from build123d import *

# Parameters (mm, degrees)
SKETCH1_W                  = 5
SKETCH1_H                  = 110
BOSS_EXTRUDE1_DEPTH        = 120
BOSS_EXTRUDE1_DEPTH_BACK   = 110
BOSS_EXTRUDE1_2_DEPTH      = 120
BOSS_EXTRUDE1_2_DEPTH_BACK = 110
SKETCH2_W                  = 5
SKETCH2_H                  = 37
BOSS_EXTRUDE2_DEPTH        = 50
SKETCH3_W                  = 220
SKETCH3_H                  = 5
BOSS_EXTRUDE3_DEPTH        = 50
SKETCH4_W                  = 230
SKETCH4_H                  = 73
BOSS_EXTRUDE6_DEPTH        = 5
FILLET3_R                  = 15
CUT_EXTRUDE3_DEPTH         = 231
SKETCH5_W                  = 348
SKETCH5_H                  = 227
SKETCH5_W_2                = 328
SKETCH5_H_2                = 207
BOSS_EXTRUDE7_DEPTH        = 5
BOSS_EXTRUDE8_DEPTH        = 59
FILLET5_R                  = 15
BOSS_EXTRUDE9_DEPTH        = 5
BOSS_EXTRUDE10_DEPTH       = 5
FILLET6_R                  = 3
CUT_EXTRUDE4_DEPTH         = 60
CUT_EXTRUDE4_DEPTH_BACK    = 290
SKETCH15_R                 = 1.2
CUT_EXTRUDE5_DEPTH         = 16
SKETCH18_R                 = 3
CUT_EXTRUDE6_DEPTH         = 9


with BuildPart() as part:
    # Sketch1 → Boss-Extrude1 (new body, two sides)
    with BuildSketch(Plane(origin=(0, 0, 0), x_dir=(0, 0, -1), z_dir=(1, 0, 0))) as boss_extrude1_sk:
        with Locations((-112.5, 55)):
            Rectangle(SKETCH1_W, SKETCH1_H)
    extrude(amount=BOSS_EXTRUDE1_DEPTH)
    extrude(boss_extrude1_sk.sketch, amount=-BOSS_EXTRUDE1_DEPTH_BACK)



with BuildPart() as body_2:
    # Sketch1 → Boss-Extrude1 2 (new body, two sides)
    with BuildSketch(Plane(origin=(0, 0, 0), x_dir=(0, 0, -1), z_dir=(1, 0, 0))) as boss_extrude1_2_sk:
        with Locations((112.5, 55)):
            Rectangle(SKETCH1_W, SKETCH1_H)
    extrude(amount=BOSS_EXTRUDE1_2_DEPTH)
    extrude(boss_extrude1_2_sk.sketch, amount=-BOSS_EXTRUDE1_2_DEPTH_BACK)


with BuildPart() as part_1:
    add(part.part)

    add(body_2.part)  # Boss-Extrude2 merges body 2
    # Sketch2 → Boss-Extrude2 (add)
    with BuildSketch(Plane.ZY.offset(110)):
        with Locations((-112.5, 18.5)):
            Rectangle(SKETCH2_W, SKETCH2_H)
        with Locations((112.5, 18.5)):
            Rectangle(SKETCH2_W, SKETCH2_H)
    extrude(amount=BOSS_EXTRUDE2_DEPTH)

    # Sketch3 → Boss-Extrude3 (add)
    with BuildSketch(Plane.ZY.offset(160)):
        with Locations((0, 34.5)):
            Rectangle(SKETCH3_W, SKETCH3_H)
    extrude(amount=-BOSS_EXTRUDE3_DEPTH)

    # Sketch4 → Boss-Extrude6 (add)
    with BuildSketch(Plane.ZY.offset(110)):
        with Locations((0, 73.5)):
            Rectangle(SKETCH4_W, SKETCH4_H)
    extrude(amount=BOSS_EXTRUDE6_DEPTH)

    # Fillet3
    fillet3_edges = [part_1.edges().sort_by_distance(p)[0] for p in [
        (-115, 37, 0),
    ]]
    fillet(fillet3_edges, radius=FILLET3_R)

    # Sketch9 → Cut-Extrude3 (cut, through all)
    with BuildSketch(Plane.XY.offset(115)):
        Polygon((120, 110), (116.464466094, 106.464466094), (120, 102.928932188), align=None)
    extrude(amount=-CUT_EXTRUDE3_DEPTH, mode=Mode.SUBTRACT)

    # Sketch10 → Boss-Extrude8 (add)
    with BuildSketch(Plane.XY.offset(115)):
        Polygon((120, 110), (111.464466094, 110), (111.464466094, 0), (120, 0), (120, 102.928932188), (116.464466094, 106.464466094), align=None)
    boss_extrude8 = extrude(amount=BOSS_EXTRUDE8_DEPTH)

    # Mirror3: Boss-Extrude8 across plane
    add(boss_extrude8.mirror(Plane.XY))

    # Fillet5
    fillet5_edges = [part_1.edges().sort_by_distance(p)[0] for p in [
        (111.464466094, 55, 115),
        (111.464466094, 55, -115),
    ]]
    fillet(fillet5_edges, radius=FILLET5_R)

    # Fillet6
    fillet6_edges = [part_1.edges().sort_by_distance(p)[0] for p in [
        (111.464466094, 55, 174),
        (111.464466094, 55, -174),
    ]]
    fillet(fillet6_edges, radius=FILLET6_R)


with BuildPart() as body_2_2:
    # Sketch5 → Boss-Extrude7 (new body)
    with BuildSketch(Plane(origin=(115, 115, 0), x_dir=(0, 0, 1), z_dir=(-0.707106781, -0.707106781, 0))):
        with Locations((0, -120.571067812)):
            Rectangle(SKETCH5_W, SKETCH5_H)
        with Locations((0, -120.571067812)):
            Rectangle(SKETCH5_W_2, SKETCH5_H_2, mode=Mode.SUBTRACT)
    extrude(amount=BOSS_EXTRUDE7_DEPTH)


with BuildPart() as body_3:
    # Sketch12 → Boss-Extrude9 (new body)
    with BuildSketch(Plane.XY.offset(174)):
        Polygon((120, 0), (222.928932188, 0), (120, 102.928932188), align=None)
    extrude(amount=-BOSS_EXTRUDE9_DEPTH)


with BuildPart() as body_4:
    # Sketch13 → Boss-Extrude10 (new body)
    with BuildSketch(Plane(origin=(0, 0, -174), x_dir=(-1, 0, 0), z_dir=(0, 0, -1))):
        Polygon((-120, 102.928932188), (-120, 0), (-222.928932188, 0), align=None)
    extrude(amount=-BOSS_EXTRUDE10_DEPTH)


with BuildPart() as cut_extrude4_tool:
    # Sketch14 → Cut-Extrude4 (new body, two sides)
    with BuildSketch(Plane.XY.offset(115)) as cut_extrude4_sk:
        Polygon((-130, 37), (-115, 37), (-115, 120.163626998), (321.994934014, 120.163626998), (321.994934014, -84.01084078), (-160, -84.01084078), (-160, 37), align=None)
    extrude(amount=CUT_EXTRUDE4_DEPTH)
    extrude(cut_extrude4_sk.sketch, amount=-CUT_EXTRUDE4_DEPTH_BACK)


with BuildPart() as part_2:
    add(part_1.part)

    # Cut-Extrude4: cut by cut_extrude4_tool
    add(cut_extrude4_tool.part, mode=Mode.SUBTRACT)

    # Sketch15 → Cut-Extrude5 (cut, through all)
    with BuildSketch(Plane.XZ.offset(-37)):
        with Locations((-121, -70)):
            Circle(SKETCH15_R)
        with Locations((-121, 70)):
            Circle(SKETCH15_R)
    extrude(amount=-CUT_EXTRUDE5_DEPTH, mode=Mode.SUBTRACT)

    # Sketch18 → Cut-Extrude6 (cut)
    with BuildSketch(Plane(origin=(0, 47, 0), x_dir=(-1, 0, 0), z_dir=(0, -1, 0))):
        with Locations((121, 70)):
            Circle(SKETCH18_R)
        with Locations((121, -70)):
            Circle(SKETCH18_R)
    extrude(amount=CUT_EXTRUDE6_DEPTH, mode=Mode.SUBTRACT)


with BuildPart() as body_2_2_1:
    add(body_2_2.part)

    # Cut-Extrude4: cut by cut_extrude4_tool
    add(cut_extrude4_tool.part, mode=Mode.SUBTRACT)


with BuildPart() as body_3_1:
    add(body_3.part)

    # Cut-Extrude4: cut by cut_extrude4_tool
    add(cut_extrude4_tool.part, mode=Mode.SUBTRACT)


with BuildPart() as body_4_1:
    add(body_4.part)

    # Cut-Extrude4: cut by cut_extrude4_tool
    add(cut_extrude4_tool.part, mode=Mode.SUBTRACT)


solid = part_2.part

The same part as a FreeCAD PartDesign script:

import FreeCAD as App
import Part
import Sketcher
from FreeCAD import Vector
Q = App.Units.Quantity


def edges_at(feature, points):
    """Names of the edges that pass closest to the given points."""
    edges = feature.Shape.Edges
    near = lambda p: min(range(len(edges)), key=lambda i: edges[i].distToShape(Part.Vertex(*p))[0])
    return sorted({f"Edge{near(p) + 1}" for p in points})

doc = App.newDocument("Part")
body = doc.addObject("PartDesign::Body", "Body")

# Sketch on YZ plane
sketch1 = doc.addObject("Sketcher::SketchObject", "Sketch")
body.addObject(sketch1)
sketch1.AttachmentSupport = (doc.YZ_Plane, [""])
sketch1.MapMode = "FlatFace"
sketch1.addGeometry([
    Part.LineSegment(Vector(110, 115, 0), Vector(0, 115, 0)),
    Part.LineSegment(Vector(0, 115, 0), Vector(0, 110, 0)),
    Part.LineSegment(Vector(0, 110, 0), Vector(110, 110, 0)),
    Part.LineSegment(Vector(110, 110, 0), Vector(110, 115, 0)),
], False)
sketch1.addConstraint([
    Sketcher.Constraint("Coincident", 0, 2, 1, 1),
    Sketcher.Constraint("Coincident", 1, 2, 2, 1),
    Sketcher.Constraint("Coincident", 2, 2, 3, 1),
    Sketcher.Constraint("Coincident", 3, 2, 0, 1),
    Sketcher.Constraint("Horizontal", 0),
    Sketcher.Constraint("Vertical", 1),
    Sketcher.Constraint("Horizontal", 2),
    Sketcher.Constraint("Vertical", 3),
    Sketcher.Constraint("PointOnObject", 0, 2, -2),
    Sketcher.Constraint("DistanceX", 0, 2, 0, 1, Q("110 mm")),
    Sketcher.Constraint("DistanceY", 1, 2, 1, 1, Q("5 mm")),
    Sketcher.Constraint("DistanceY", -1, 1, 0, 2, Q("115 mm")),
])
pad1 = doc.addObject("PartDesign::Pad", "Pad")
body.addObject(pad1)
pad1.Profile = sketch1
pad1.Type = "TwoLengths"
pad1.Length = 120
pad1.Length2 = 110
body2 = doc.addObject("PartDesign::Body", "Body001")

# Sketch on YZ plane
sketch2 = doc.addObject("Sketcher::SketchObject", "Sketch001")
body2.addObject(sketch2)
sketch2.AttachmentSupport = (doc.getObject("YZ_Plane001"), [""])
sketch2.MapMode = "FlatFace"
sketch2.addGeometry([
    Part.LineSegment(Vector(110, -110, 0), Vector(0, -110, 0)),
    Part.LineSegment(Vector(0, -110, 0), Vector(0, -115, 0)),
    Part.LineSegment(Vector(0, -115, 0), Vector(110, -115, 0)),
    Part.LineSegment(Vector(110, -115, 0), Vector(110, -110, 0)),
], False)
sketch2.addConstraint([
    Sketcher.Constraint("Coincident", 0, 2, 1, 1),
    Sketcher.Constraint("Coincident", 1, 2, 2, 1),
    Sketcher.Constraint("Coincident", 2, 2, 3, 1),
    Sketcher.Constraint("Coincident", 3, 2, 0, 1),
    Sketcher.Constraint("Horizontal", 0),
    Sketcher.Constraint("Vertical", 1),
    Sketcher.Constraint("Horizontal", 2),
    Sketcher.Constraint("Vertical", 3),
    Sketcher.Constraint("PointOnObject", 0, 2, -2),
    Sketcher.Constraint("DistanceX", 0, 2, 0, 1, Q("110 mm")),
    Sketcher.Constraint("DistanceY", 1, 2, 1, 1, Q("5 mm")),
    Sketcher.Constraint("DistanceY", 0, 2, -1, 1, Q("110 mm")),
])
pad2 = doc.addObject("PartDesign::Pad", "Pad001")
body2.addObject(pad2)
pad2.Profile = sketch2
pad2.Type = "TwoLengths"
pad2.Length = 120
pad2.Length2 = 110
body.AllowCompound = True
doc.recompute()

boolean = doc.addObject("PartDesign::Boolean", "Boolean")
body.addObject(boolean)
boolean.Type = "Fuse"
boolean.addObjects([body2])

# Sketch on YZ plane
sketch3 = doc.addObject("Sketcher::SketchObject", "Sketch002")
body.addObject(sketch3)
sketch3.AttachmentSupport = (doc.YZ_Plane, [""])
sketch3.MapMode = "FlatFace"
sketch3.AttachmentOffset = App.Placement(Vector(0, 0, -110), App.Rotation())
sketch3.addGeometry([
    Part.LineSegment(Vector(37, -115, 0), Vector(0, -115, 0)),  # 0
    Part.LineSegment(Vector(0, -115, 0), Vector(0, -110, 0)),  # 1
    Part.LineSegment(Vector(0, -110, 0), Vector(37, -110, 0)),  # 2
    Part.LineSegment(Vector(37, -110, 0), Vector(37, -115, 0)),  # 3
    Part.LineSegment(Vector(37, 110, 0), Vector(0, 110, 0)),  # 4
    Part.LineSegment(Vector(0, 110, 0), Vector(0, 115, 0)),  # 5
    Part.LineSegment(Vector(0, 115, 0), Vector(37, 115, 0)),  # 6
    Part.LineSegment(Vector(37, 115, 0), Vector(37, 110, 0)),  # 7
], False)
sketch3.addConstraint([
    Sketcher.Constraint("Coincident", 0, 2, 1, 1),
    Sketcher.Constraint("Coincident", 1, 2, 2, 1),
    Sketcher.Constraint("Coincident", 2, 2, 3, 1),
    Sketcher.Constraint("Coincident", 3, 2, 0, 1),
    Sketcher.Constraint("Coincident", 4, 2, 5, 1),
    Sketcher.Constraint("Coincident", 5, 2, 6, 1),
    Sketcher.Constraint("Coincident", 6, 2, 7, 1),
    Sketcher.Constraint("Coincident", 7, 2, 4, 1),
    Sketcher.Constraint("Horizontal", 0),
    Sketcher.Constraint("Vertical", 1),
    Sketcher.Constraint("Horizontal", 2),
    Sketcher.Constraint("Vertical", 3),
    Sketcher.Constraint("Horizontal", 4),
    Sketcher.Constraint("Vertical", 5),
    Sketcher.Constraint("Horizontal", 6),
    Sketcher.Constraint("Vertical", 7),
    Sketcher.Constraint("Symmetric", 1, 2, 4, 2, -1, 1),
    Sketcher.Constraint("Symmetric", 0, 2, 5, 2, -1),
    Sketcher.Constraint("Vertical", 3, 2, 6, 2),
    Sketcher.Constraint("DistanceX", 0, 2, 0, 1, Q("37 mm")),
    Sketcher.Constraint("DistanceY", 1, 1, 1, 2, Q("5 mm")),
    Sketcher.Constraint("DistanceY", 0, 2, -1, 1, Q("115 mm")),
])
pad3 = doc.addObject("PartDesign::Pad", "Pad002")
body.addObject(pad3)
pad3.Profile = sketch3
pad3.Length = 50
pad3.Reversed = True

# Sketch on YZ plane
sketch4 = doc.addObject("Sketcher::SketchObject", "Sketch003")
body.addObject(sketch4)
sketch4.AttachmentSupport = (doc.YZ_Plane, [""])
sketch4.MapMode = "FlatFace"
sketch4.AttachmentOffset = App.Placement(Vector(0, 0, -160), App.Rotation())
sketch4.addGeometry([
    Part.LineSegment(Vector(37, -110, 0), Vector(32, -110, 0)),
    Part.LineSegment(Vector(32, -110, 0), Vector(32, 110, 0)),
    Part.LineSegment(Vector(32, 110, 0), Vector(37, 110, 0)),
    Part.LineSegment(Vector(37, 110, 0), Vector(37, -110, 0)),
], False)
sketch4.addConstraint([
    Sketcher.Constraint("Coincident", 0, 2, 1, 1),
    Sketcher.Constraint("Coincident", 1, 2, 2, 1),
    Sketcher.Constraint("Coincident", 2, 2, 3, 1),
    Sketcher.Constraint("Coincident", 3, 2, 0, 1),
    Sketcher.Constraint("Horizontal", 0),
    Sketcher.Constraint("Vertical", 1),
    Sketcher.Constraint("Horizontal", 2),
    Sketcher.Constraint("Vertical", 3),
    Sketcher.Constraint("DistanceX", 0, 2, 0, 1, Q("5 mm")),
    Sketcher.Constraint("DistanceY", 1, 1, 1, 2, Q("220 mm")),
    Sketcher.Constraint("DistanceX", -1, 1, 0, 2, Q("32 mm")),
    Sketcher.Constraint("DistanceY", 0, 2, -1, 1, Q("110 mm")),
])
pad4 = doc.addObject("PartDesign::Pad", "Pad003")
body.addObject(pad4)
pad4.Profile = sketch4
pad4.Length = 50

# Sketch on YZ plane
sketch5 = doc.addObject("Sketcher::SketchObject", "Sketch004")
body.addObject(sketch5)
sketch5.AttachmentSupport = (doc.YZ_Plane, [""])
sketch5.MapMode = "FlatFace"
sketch5.AttachmentOffset = App.Placement(Vector(0, 0, -110), App.Rotation())
sketch5.addGeometry([
    Part.LineSegment(Vector(110, -115, 0), Vector(37, -115, 0)),
    Part.LineSegment(Vector(37, -115, 0), Vector(37, 115, 0)),
    Part.LineSegment(Vector(37, 115, 0), Vector(110, 115, 0)),
    Part.LineSegment(Vector(110, 115, 0), Vector(110, -115, 0)),
], False)
sketch5.addConstraint([
    Sketcher.Constraint("Coincident", 0, 2, 1, 1),
    Sketcher.Constraint("Coincident", 1, 2, 2, 1),
    Sketcher.Constraint("Coincident", 2, 2, 3, 1),
    Sketcher.Constraint("Coincident", 3, 2, 0, 1),
    Sketcher.Constraint("Horizontal", 0),
    Sketcher.Constraint("Vertical", 1),
    Sketcher.Constraint("Horizontal", 2),
    Sketcher.Constraint("Vertical", 3),
    Sketcher.Constraint("DistanceX", 0, 2, 0, 1, Q("73 mm")),
    Sketcher.Constraint("DistanceY", 1, 1, 1, 2, Q("230 mm")),
    Sketcher.Constraint("DistanceX", -1, 1, 0, 2, Q("37 mm")),
    Sketcher.Constraint("DistanceY", 0, 2, -1, 1, Q("115 mm")),
])
pad5 = doc.addObject("PartDesign::Pad", "Pad004")
body.addObject(pad5)
pad5.Profile = sketch5
pad5.Length = 5
pad5.Reversed = True
doc.recompute()

fillet = doc.addObject("PartDesign::Fillet", "Fillet")
body.addObject(fillet)
fillet.Base = (pad5, edges_at(pad5, [(-115, 37, 0)]))
fillet.Radius = 15

# Sketch on XY plane
sketch6 = doc.addObject("Sketcher::SketchObject", "Sketch005")
body.addObject(sketch6)
sketch6.AttachmentSupport = (doc.XY_Plane, [""])
sketch6.MapMode = "FlatFace"
sketch6.AttachmentOffset = App.Placement(Vector(0, 0, 115), App.Rotation())
sketch6.addGeometry([
    Part.LineSegment(Vector(120, 110, 0), Vector(116, 106, 0)),
    Part.LineSegment(Vector(116, 106, 0), Vector(120, 103, 0)),
    Part.LineSegment(Vector(120, 103, 0), Vector(120, 110, 0)),
], False)
sketch6.addConstraint([
    Sketcher.Constraint("Coincident", 0, 2, 1, 1),
    Sketcher.Constraint("Coincident", 1, 2, 2, 1),
    Sketcher.Constraint("Coincident", 2, 2, 0, 1),
    Sketcher.Constraint("Vertical", 2),
    Sketcher.Constraint("Perpendicular", 0, 1),
    Sketcher.Constraint("Equal", 0, 1),
    Sketcher.Constraint("Distance", 0, Q("5 mm")),
    Sketcher.Constraint("DistanceX", -1, 1, 1, 2, Q("120 mm")),
    Sketcher.Constraint("DistanceY", -1, 1, 2, 2, Q("110 mm")),
])
pocket1 = doc.addObject("PartDesign::Pocket", "Pocket")
body.addObject(pocket1)
pocket1.Profile = sketch6
pocket1.Type = "ThroughAll"

# Sketch on XY plane
sketch7 = doc.addObject("Sketcher::SketchObject", "Sketch006")
body.addObject(sketch7)
sketch7.AttachmentSupport = (doc.XY_Plane, [""])
sketch7.MapMode = "FlatFace"
sketch7.AttachmentOffset = App.Placement(Vector(0, 0, 115), App.Rotation())
sketch7.addGeometry([
    Part.LineSegment(Vector(120, 110, 0), Vector(111, 110, 0)),  # 0
    Part.LineSegment(Vector(111, 110, 0), Vector(111, 0, 0)),  # 1
    Part.LineSegment(Vector(111, 0, 0), Vector(120, 0, 0)),  # 2
    Part.LineSegment(Vector(120, 0, 0), Vector(120, 103, 0)),  # 3
    Part.LineSegment(Vector(120, 103, 0), Vector(116, 106, 0)),  # 4
    Part.LineSegment(Vector(116, 106, 0), Vector(120, 110, 0)),  # 5
], False)
sketch7.addConstraint([
    Sketcher.Constraint("Coincident", 0, 2, 1, 1),
    Sketcher.Constraint("Coincident", 1, 2, 2, 1),
    Sketcher.Constraint("Coincident", 2, 2, 3, 1),
    Sketcher.Constraint("Coincident", 3, 2, 4, 1),
    Sketcher.Constraint("Coincident", 4, 2, 5, 1),
    Sketcher.Constraint("Coincident", 5, 2, 0, 1),
    Sketcher.Constraint("Horizontal", 0),
    Sketcher.Constraint("Vertical", 1),
    Sketcher.Constraint("Horizontal", 2),
    Sketcher.Constraint("Vertical", 3),
    Sketcher.Constraint("PointOnObject", 1, 2, -1),
    Sketcher.Constraint("Perpendicular", 4, 5),
    Sketcher.Constraint("Vertical", 3, 2, 5, 2),
    Sketcher.Constraint("Equal", 4, 5),
    Sketcher.Constraint("DistanceY", 1, 2, 1, 1, Q("110 mm")),
    Sketcher.Constraint("Distance", 4, Q("5 mm")),
    Sketcher.Constraint("DistanceX", -1, 1, 2, 2, Q("120 mm")),
    Sketcher.Constraint("DistanceX", 0, 2, 4, 2, Q("5 mm")),
])
pad6 = doc.addObject("PartDesign::Pad", "Pad005")
body.addObject(pad6)
pad6.Profile = sketch7
pad6.Length = 59
doc.recompute()

mirrored = doc.addObject("PartDesign::Mirrored", "Mirrored")
body.addObject(mirrored)
mirrored.Originals = [pad6]
mirrored.MirrorPlane = (doc.XY_Plane, [""])
body.Tip = mirrored
doc.recompute()

fillet2 = doc.addObject("PartDesign::Fillet", "Fillet001")
body.addObject(fillet2)
fillet2.Base = (mirrored, edges_at(mirrored, [(111.464, 55, 115), (111.464, 55, -115)]))
fillet2.Radius = 15
doc.recompute()

fillet3 = doc.addObject("PartDesign::Fillet", "Fillet002")
body.addObject(fillet3)
fillet3.Base = (fillet2, edges_at(fillet2, [(111.464, 55, 174), (111.464, 55, -174)]))
fillet3.Radius = 3
body3 = doc.addObject("PartDesign::Body", "Body002")

# Sketch on an angled plane
sketch8 = doc.addObject("Sketcher::SketchObject", "Sketch007")
body3.addObject(sketch8)
sketch8.Placement = App.Placement(Vector(115, 115, 0), App.Rotation(Vector(0, 0, 1), Vector(-0.707106781, 0.707106781, 0), Vector(-0.707106781, -0.707106781, 0), "ZXY"))
sketch8.addGeometry([
    Part.LineSegment(Vector(-174, -7, 0), Vector(-174, -234, 0)),  # 0
    Part.LineSegment(Vector(-174, -234, 0), Vector(174, -234, 0)),  # 1
    Part.LineSegment(Vector(174, -234, 0), Vector(174, -7, 0)),  # 2
    Part.LineSegment(Vector(174, -7, 0), Vector(-174, -7, 0)),  # 3
    Part.LineSegment(Vector(164, -224, 0), Vector(-164, -224, 0)),  # 4
    Part.LineSegment(Vector(-164, -224, 0), Vector(-164, -17, 0)),  # 5
    Part.LineSegment(Vector(-164, -17, 0), Vector(164, -17, 0)),  # 6
    Part.LineSegment(Vector(164, -17, 0), Vector(164, -224, 0)),  # 7
], False)
sketch8.addConstraint([
    Sketcher.Constraint("Coincident", 0, 2, 1, 1),
    Sketcher.Constraint("Coincident", 1, 2, 2, 1),
    Sketcher.Constraint("Coincident", 2, 2, 3, 1),
    Sketcher.Constraint("Coincident", 3, 2, 0, 1),
    Sketcher.Constraint("Coincident", 4, 2, 5, 1),
    Sketcher.Constraint("Coincident", 5, 2, 6, 1),
    Sketcher.Constraint("Coincident", 6, 2, 7, 1),
    Sketcher.Constraint("Coincident", 7, 2, 4, 1),
    Sketcher.Constraint("Vertical", 0),
    Sketcher.Constraint("Horizontal", 1),
    Sketcher.Constraint("Vertical", 2),
    Sketcher.Constraint("Horizontal", 3),
    Sketcher.Constraint("Horizontal", 4),
    Sketcher.Constraint("Vertical", 5),
    Sketcher.Constraint("Horizontal", 6),
    Sketcher.Constraint("Vertical", 7),
    Sketcher.Constraint("DistanceX", 1, 1, 1, 2, Q("348 mm")),
    Sketcher.Constraint("DistanceX", 4, 2, 4, 1, Q("328 mm")),
    Sketcher.Constraint("DistanceY", 0, 2, 0, 1, Q("227 mm")),
    Sketcher.Constraint("DistanceY", 5, 1, 5, 2, Q("207 mm")),
    Sketcher.Constraint("DistanceX", 0, 2, -1, 1, Q("174 mm")),
    Sketcher.Constraint("DistanceX", 4, 2, -1, 1, Q("164 mm")),
    Sketcher.Constraint("DistanceY", 0, 2, 4, 2, Q("10 mm")),
    Sketcher.Constraint("DistanceY", 0, 2, -1, 1, Q("234.071068 mm")),
])
pad7 = doc.addObject("PartDesign::Pad", "Pad006")
body3.addObject(pad7)
pad7.Profile = sketch8
pad7.Length = 5
body4 = doc.addObject("PartDesign::Body", "Body003")

# Sketch on XY plane
sketch9 = doc.addObject("Sketcher::SketchObject", "Sketch008")
body4.addObject(sketch9)
sketch9.AttachmentSupport = (doc.getObject("XY_Plane003"), [""])
sketch9.MapMode = "FlatFace"
sketch9.AttachmentOffset = App.Placement(Vector(0, 0, 174), App.Rotation())
sketch9.addGeometry([
    Part.LineSegment(Vector(120, 0, 0), Vector(223, 0, 0)),
    Part.LineSegment(Vector(223, 0, 0), Vector(120, 103, 0)),
    Part.LineSegment(Vector(120, 103, 0), Vector(120, 0, 0)),
], False)
sketch9.addConstraint([
    Sketcher.Constraint("Coincident", 0, 2, 1, 1),
    Sketcher.Constraint("Coincident", 1, 2, 2, 1),
    Sketcher.Constraint("Coincident", 2, 2, 0, 1),
    Sketcher.Constraint("Horizontal", 0),
    Sketcher.Constraint("Vertical", 2),
    Sketcher.Constraint("PointOnObject", 0, 2, -1),
    Sketcher.Constraint("Equal", 0, 2),
    Sketcher.Constraint("DistanceX", -1, 1, 1, 2, Q("120 mm")),
    Sketcher.Constraint("Distance", 1, Q("145.563492 mm")),
])
pad8 = doc.addObject("PartDesign::Pad", "Pad007")
body4.addObject(pad8)
pad8.Profile = sketch9
pad8.Length = 5
pad8.Reversed = True
body5 = doc.addObject("PartDesign::Body", "Body004")

# Sketch on XY plane
sketch10 = doc.addObject("Sketcher::SketchObject", "Sketch009")
body5.addObject(sketch10)
sketch10.AttachmentSupport = (doc.getObject("XY_Plane004"), [""])
sketch10.MapMode = "FlatFace"
sketch10.AttachmentOffset = App.Placement(Vector(0, 0, -174), App.Rotation())
sketch10.addGeometry([
    Part.LineSegment(Vector(120, 0, 0), Vector(120, 103, 0)),
    Part.LineSegment(Vector(120, 103, 0), Vector(223, 0, 0)),
    Part.LineSegment(Vector(223, 0, 0), Vector(120, 0, 0)),
], False)
sketch10.addConstraint([
    Sketcher.Constraint("Coincident", 0, 2, 1, 1),
    Sketcher.Constraint("Coincident", 1, 2, 2, 1),
    Sketcher.Constraint("Coincident", 2, 2, 0, 1),
    Sketcher.Constraint("Vertical", 0),
    Sketcher.Constraint("Horizontal", 2),
    Sketcher.Constraint("PointOnObject", 1, 2, -1),
    Sketcher.Constraint("Equal", 2, 0),
    Sketcher.Constraint("DistanceX", -1, 1, 0, 2, Q("120 mm")),
    Sketcher.Constraint("Distance", 1, Q("145.563492 mm")),
])
pad9 = doc.addObject("PartDesign::Pad", "Pad008")
body5.addObject(pad9)
pad9.Profile = sketch10
pad9.Length = 5
body6 = doc.addObject("PartDesign::Body", "Body005")

# Sketch on XY plane
sketch11 = doc.addObject("Sketcher::SketchObject", "Sketch010")
body6.addObject(sketch11)
sketch11.AttachmentSupport = (doc.getObject("XY_Plane005"), [""])
sketch11.MapMode = "FlatFace"
sketch11.AttachmentOffset = App.Placement(Vector(0, 0, 115), App.Rotation())
sketch11.addGeometry([
    Part.LineSegment(Vector(-115, 37, 0), Vector(-160, 37, 0)),  # 0
    Part.LineSegment(Vector(-160, 37, 0), Vector(-160, -84, 0)),  # 1
    Part.LineSegment(Vector(-160, -84, 0), Vector(322, -84, 0)),  # 2
    Part.LineSegment(Vector(322, -84, 0), Vector(322, 120, 0)),  # 3
    Part.LineSegment(Vector(322, 120, 0), Vector(-115, 120, 0)),  # 4
    Part.LineSegment(Vector(-115, 120, 0), Vector(-115, 37, 0)),  # 5
], False)
sketch11.addConstraint([
    Sketcher.Constraint("Coincident", 0, 2, 1, 1),
    Sketcher.Constraint("Coincident", 1, 2, 2, 1),
    Sketcher.Constraint("Coincident", 2, 2, 3, 1),
    Sketcher.Constraint("Coincident", 3, 2, 4, 1),
    Sketcher.Constraint("Coincident", 4, 2, 5, 1),
    Sketcher.Constraint("Coincident", 5, 2, 0, 1),
    Sketcher.Constraint("Horizontal", 0),
    Sketcher.Constraint("Vertical", 1),
    Sketcher.Constraint("Horizontal", 2),
    Sketcher.Constraint("Vertical", 3),
    Sketcher.Constraint("Horizontal", 4),
    Sketcher.Constraint("Vertical", 5),
    Sketcher.Constraint("DistanceX", 0, 2, 0, 1, Q("45 mm")),
    Sketcher.Constraint("DistanceX", 0, 2, -1, 1, Q("160 mm")),
    Sketcher.Constraint("DistanceY", -1, 1, 0, 2, Q("37 mm")),
    Sketcher.Constraint("DistanceY", 1, 2, 1, 1, Q("121.010841 mm")),
    Sketcher.Constraint("DistanceX", 2, 1, 2, 2, Q("481.994934 mm")),
    Sketcher.Constraint("DistanceY", 3, 1, 3, 2, Q("204.174468 mm")),
])
pad10 = doc.addObject("PartDesign::Pad", "Pad009")
body6.addObject(pad10)
pad10.Profile = sketch11
pad10.Type = "TwoLengths"
pad10.Length = 60
pad10.Length2 = 290
doc.recompute()

body7 = doc.addObject("PartDesign::Body", "Body006")
body7.BaseFeature = body6
boolean2 = doc.addObject("PartDesign::Boolean", "Boolean001")
body.addObject(boolean2)
boolean2.Type = "Cut"
boolean2.addObjects([body7])
doc.recompute()

# Sketch on XZ plane
sketch12 = doc.addObject("Sketcher::SketchObject", "Sketch011")
body.addObject(sketch12)
sketch12.AttachmentSupport = (doc.XZ_Plane, [""])
sketch12.MapMode = "FlatFace"
sketch12.AttachmentOffset = App.Placement(Vector(0, 0, -37), App.Rotation())
sketch12.addGeometry([
    Part.Circle(Vector(-121, -70, 0), Vector(0, 0, 1), 1.2),
    Part.Circle(Vector(-121, 70, 0), Vector(0, 0, 1), 1.2),
], False)
sketch12.addConstraint([
    Sketcher.Constraint("Equal", 0, 1),
    Sketcher.Constraint("Symmetric", 0, 3, 1, 3, -1),
    Sketcher.Constraint("Diameter", 0, Q("2.4 mm")),
    Sketcher.Constraint("DistanceX", 0, 3, -1, 1, Q("121 mm")),
    Sketcher.Constraint("DistanceY", 0, 3, -1, 1, Q("70 mm")),
])
pocket2 = doc.addObject("PartDesign::Pocket", "Pocket001")
body.addObject(pocket2)
pocket2.Profile = sketch12
pocket2.Type = "ThroughAll"

# Sketch on XZ plane
sketch13 = doc.addObject("Sketcher::SketchObject", "Sketch012")
body.addObject(sketch13)
sketch13.AttachmentSupport = (doc.XZ_Plane, [""])
sketch13.MapMode = "FlatFace"
sketch13.AttachmentOffset = App.Placement(Vector(0, 0, -47), App.Rotation())
sketch13.addGeometry([
    Part.Circle(Vector(-121, -70, 0), Vector(0, 0, 1), 3),
    Part.Circle(Vector(-121, 70, 0), Vector(0, 0, 1), 3),
], False)
sketch13.addConstraint([
    Sketcher.Constraint("Equal", 0, 1),
    Sketcher.Constraint("Symmetric", 0, 3, 1, 3, -1),
    Sketcher.Constraint("Diameter", 0, Q("6 mm")),
    Sketcher.Constraint("DistanceX", 0, 3, -1, 1, Q("121 mm")),
    Sketcher.Constraint("DistanceY", 0, 3, -1, 1, Q("70 mm")),
])
pocket3 = doc.addObject("PartDesign::Pocket", "Pocket002")
body.addObject(pocket3)
pocket3.Profile = sketch13
pocket3.Length = 9
pocket3.Reversed = True
doc.recompute()

body8 = doc.addObject("PartDesign::Body", "Body007")
body8.BaseFeature = body6
boolean3 = doc.addObject("PartDesign::Boolean", "Boolean002")
body3.addObject(boolean3)
boolean3.Type = "Cut"
boolean3.addObjects([body8])
doc.recompute()

body9 = doc.addObject("PartDesign::Body", "Body008")
body9.BaseFeature = body6
boolean4 = doc.addObject("PartDesign::Boolean", "Boolean003")
body4.addObject(boolean4)
boolean4.Type = "Cut"
boolean4.addObjects([body9])
doc.recompute()

boolean5 = doc.addObject("PartDesign::Boolean", "Boolean004")
body5.addObject(boolean5)
boolean5.Type = "Cut"
boolean5.addObjects([body6])

doc.recompute()
